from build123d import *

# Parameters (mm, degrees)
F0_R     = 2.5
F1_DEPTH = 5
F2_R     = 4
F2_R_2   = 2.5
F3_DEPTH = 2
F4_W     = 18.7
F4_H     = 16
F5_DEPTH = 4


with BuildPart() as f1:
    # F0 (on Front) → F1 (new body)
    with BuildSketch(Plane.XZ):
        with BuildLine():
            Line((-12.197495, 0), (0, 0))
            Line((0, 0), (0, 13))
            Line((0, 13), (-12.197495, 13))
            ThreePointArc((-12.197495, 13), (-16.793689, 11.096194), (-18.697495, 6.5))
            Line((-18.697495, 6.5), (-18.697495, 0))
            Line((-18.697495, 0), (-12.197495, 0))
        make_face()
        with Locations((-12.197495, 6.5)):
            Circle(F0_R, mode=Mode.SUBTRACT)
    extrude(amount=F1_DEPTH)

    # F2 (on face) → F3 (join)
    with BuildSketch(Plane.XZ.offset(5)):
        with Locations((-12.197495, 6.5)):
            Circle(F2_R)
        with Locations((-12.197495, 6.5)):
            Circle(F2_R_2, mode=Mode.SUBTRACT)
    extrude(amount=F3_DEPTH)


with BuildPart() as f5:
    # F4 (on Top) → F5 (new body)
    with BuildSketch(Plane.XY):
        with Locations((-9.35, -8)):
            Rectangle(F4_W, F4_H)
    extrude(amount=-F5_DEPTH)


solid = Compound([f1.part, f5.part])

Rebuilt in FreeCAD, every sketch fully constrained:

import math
import FreeCAD as App
import Part
import Sketcher


def add_polygon(sketch, points):
    """Adds a closed chain of lines whose ends are joined by coincident constraints."""
    first, n = sketch.GeometryCount, len(points)
    for a, b in zip(points, points[1:] + points[:1]):
        sketch.addGeometry(Part.LineSegment(App.Vector(*a, 0), App.Vector(*b, 0)), False)
    for i in range(n):
        sketch.addConstraint(Sketcher.Constraint("Coincident", first + i, 2, first + (i + 1) % n, 1))

doc = App.newDocument("Part")
body = doc.addObject("PartDesign::Body", "Body")

sketch1 = body.newObject("Sketcher::SketchObject", "Sketch")
sketch1.AttachmentSupport = (doc.getObject("XZ_Plane"), [""])
sketch1.MapMode = "FlatFace"
sketch1.addGeometry([
    Part.LineSegment(App.Vector(0, 0, 0), App.Vector(0, 13, 0)),
    Part.LineSegment(App.Vector(0, 13, 0), App.Vector(-12.2, 13, 0)),
    Part.ArcOfCircle(Part.Circle(App.Vector(-12.2, 6.5, 0), App.Vector(0, 0, 1), 6.5), math.radians(90), math.radians(180)),
    Part.LineSegment(App.Vector(-18.7, 6.5, 0), App.Vector(-18.7, 0, 0)),
    Part.LineSegment(App.Vector(-18.7, 0, 0), App.Vector(0, 0, 0)),
    Part.Circle(App.Vector(-12.2, 6.5, 0), App.Vector(0, 0, 1), 2.5),
], False)
sketch1.addConstraint([
    Sketcher.Constraint("Coincident", 0, 2, 1, 1),
    Sketcher.Constraint("Tangent", 1, 2, 2, 1),
    Sketcher.Constraint("Tangent", 2, 2, 3, 1),
    Sketcher.Constraint("Coincident", 3, 2, 4, 1),
    Sketcher.Constraint("Coincident", 4, 2, 0, 1),
    Sketcher.Constraint("Vertical", 0),
    Sketcher.Constraint("Horizontal", 1),
    Sketcher.Constraint("Vertical", 3),
    Sketcher.Constraint("Horizontal", 4),
    Sketcher.Constraint("Coincident", 4, 2, -1, 1),
    Sketcher.Constraint("Coincident", 5, 3, 2, 3),
    Sketcher.Constraint("Diameter", 5, 5.0),
    Sketcher.Constraint("Radius", 2, 6.5),
    Sketcher.Constraint("DistanceY", 0, 1, 0, 2, 13.0),
    Sketcher.Constraint("DistanceX", 1, 2, 1, 1, 12.197495),
])
pad1 = body.newObject("PartDesign::Pad", "Pad")
pad1.Profile = sketch1
pad1.Length = 5

sketch2 = body.newObject("Sketcher::SketchObject", "Sketch001")
sketch2.AttachmentSupport = (doc.getObject("XZ_Plane"), [""])
sketch2.MapMode = "FlatFace"
sketch2.AttachmentOffset = App.Placement(App.Vector(0, 0, 5), App.Rotation())
sketch2.addGeometry([
    Part.Circle(App.Vector(-12.2, 6.5, 0), App.Vector(0, 0, 1), 4),
    Part.Circle(App.Vector(-12.2, 6.5, 0), App.Vector(0, 0, 1), 2.5),
], False)
sketch2.addConstraint([
    Sketcher.Constraint("Coincident", 1, 3, 0, 3),
    Sketcher.Constraint("Diameter", 0, 8.0),
    Sketcher.Constraint("Diameter", 1, 5.0),
    Sketcher.Constraint("DistanceY", -1, 1, 0, 3, 6.5),
    Sketcher.Constraint("DistanceX", 0, 3, -1, 1, 12.197495),
])
pad2 = body.newObject("PartDesign::Pad", "Pad001")
pad2.Profile = sketch2
pad2.Length = 2
body2 = doc.addObject("PartDesign::Body", "Body001")

sketch3 = body2.newObject("Sketcher::SketchObject", "Sketch002")
sketch3.AttachmentSupport = (doc.getObject("XY_Plane001"), [""])
sketch3.MapMode = "FlatFace"
add_polygon(sketch3, [(-19, 0), (-19, -16), (0, -16), (0, 0)])
sketch3.addConstraint([
    Sketcher.Constraint("Vertical", 0),
    Sketcher.Constraint("Horizontal", 1),
    Sketcher.Constraint("Vertical", 2),
    Sketcher.Constraint("Horizontal", 3),
    Sketcher.Constraint("Coincident", 2, 2, -1, 1),
    Sketcher.Constraint("DistanceY", 0, 2, 0, 1, 16.0),
    Sketcher.Constraint("DistanceX", 1, 1, 1, 2, 18.7),
])
pad3 = body2.newObject("PartDesign::Pad", "Pad002")
pad3.Profile = sketch3
pad3.Length = 4
pad3.Reversed = True

doc.recompute()
